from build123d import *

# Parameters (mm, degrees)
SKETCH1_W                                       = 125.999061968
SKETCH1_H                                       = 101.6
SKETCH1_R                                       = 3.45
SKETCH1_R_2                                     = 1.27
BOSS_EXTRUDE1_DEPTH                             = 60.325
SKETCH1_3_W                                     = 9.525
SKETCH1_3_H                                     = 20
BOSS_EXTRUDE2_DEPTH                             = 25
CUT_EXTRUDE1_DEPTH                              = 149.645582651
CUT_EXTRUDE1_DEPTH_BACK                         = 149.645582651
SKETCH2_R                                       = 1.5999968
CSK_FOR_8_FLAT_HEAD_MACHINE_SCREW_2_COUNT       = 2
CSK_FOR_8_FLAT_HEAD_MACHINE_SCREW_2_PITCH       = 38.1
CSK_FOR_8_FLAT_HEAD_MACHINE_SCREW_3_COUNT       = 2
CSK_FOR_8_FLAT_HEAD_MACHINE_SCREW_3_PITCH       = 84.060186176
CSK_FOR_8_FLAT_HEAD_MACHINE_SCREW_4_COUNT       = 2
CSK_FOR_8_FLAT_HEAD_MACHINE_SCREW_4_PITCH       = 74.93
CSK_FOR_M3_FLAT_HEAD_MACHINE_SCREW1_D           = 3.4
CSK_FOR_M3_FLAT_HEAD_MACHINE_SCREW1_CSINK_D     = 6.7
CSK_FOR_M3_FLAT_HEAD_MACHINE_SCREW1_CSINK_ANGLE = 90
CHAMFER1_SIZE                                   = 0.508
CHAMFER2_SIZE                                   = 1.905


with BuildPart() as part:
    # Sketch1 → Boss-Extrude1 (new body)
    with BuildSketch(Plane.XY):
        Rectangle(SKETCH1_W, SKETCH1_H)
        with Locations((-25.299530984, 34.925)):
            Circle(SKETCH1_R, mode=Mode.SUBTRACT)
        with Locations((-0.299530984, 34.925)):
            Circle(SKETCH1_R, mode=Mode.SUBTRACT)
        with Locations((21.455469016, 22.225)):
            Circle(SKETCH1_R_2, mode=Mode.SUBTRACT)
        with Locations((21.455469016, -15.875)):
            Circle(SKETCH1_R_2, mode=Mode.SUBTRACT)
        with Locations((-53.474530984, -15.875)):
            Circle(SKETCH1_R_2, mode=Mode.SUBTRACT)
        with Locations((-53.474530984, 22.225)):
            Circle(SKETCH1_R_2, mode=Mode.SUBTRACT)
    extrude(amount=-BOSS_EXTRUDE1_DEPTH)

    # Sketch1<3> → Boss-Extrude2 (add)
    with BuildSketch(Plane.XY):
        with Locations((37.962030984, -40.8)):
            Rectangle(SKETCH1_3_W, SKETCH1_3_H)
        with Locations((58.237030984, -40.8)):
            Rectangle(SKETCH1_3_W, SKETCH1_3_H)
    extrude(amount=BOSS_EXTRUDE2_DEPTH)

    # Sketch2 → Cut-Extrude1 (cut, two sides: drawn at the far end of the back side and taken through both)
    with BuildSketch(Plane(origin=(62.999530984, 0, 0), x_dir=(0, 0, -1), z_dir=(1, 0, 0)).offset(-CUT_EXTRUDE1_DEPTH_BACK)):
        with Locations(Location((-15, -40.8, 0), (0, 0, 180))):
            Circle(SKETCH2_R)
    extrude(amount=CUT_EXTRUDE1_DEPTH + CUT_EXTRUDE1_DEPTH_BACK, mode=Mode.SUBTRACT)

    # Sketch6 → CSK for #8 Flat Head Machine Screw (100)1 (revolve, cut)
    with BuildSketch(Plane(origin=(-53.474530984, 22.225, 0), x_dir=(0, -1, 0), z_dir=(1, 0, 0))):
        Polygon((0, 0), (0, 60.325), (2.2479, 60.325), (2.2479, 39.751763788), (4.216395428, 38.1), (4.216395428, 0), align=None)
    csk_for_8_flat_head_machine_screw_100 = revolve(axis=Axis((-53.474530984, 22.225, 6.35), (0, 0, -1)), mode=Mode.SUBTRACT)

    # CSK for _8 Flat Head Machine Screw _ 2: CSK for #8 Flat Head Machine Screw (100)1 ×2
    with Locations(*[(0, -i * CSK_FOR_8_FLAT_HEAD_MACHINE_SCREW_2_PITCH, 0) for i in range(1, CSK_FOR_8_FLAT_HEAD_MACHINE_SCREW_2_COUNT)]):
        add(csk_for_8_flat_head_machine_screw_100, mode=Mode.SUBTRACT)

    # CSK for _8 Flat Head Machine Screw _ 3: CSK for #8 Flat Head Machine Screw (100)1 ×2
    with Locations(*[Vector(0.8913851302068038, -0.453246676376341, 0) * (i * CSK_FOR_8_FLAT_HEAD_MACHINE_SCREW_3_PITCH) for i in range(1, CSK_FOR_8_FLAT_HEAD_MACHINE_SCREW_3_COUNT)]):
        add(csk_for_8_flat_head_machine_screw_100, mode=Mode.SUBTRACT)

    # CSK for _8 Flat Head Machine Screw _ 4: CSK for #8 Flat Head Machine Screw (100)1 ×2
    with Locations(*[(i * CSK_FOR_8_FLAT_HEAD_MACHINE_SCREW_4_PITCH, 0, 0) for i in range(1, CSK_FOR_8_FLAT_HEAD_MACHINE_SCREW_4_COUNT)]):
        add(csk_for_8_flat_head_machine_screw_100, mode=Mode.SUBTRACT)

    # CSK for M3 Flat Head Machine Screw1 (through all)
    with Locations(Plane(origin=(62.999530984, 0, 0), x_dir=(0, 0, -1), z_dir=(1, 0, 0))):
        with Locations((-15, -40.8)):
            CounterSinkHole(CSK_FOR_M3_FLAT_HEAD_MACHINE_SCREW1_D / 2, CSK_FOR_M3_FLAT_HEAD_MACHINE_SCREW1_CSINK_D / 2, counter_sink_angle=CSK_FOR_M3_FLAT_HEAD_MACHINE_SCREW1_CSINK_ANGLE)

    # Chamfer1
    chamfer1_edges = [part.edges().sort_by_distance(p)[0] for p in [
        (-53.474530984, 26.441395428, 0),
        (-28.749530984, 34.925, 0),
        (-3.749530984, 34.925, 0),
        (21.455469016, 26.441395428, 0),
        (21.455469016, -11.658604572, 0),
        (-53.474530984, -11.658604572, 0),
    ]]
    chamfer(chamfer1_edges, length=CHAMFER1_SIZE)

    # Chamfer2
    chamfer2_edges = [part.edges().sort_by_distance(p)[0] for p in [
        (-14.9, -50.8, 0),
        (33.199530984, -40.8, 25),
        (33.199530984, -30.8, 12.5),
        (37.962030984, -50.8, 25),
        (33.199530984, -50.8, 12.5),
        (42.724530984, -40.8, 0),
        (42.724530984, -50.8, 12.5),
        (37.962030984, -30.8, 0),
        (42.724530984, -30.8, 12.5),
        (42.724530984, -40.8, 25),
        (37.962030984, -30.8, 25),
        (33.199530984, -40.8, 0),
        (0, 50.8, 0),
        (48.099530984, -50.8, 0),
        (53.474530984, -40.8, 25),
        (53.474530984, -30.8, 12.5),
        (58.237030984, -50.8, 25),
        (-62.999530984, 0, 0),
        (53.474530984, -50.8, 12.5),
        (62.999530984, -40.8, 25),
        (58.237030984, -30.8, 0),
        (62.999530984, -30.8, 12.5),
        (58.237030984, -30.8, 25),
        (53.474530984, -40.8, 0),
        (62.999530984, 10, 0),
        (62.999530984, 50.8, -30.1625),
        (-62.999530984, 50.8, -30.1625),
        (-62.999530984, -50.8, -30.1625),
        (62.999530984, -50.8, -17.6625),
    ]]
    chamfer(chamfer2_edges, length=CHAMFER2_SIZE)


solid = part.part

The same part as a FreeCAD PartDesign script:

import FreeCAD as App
import Part
import Sketcher
from FreeCAD import Vector
Q = App.Units.Quantity


def edges_at(feature, points):
    """Names of the edges that pass closest to the given points."""
    edges = feature.Shape.Edges
    near = lambda p: min(range(len(edges)), key=lambda i: edges[i].distToShape(Part.Vertex(*p))[0])
    return sorted({f"Edge{near(p) + 1}" for p in points})

doc = App.newDocument("Part")
body = doc.addObject("PartDesign::Body", "Body")

sketch1 = body.newObject("Sketcher::SketchObject", "Sketch")
sketch1.AttachmentSupport = (doc.getObject("XY_Plane"), [""])
sketch1.MapMode = "FlatFace"
sketch1.addGeometry(Part.LineSegment(Vector(-63, 50.8, 0), Vector(-63, -50.8, 0)), False)
sketch1.addGeometry(Part.LineSegment(Vector(-63, -50.8, 0), Vector(63, -50.8, 0)), False)
sketch1.addGeometry(Part.LineSegment(Vector(63, -50.8, 0), Vector(63, 50.8, 0)), False)
sketch1.addGeometry(Part.LineSegment(Vector(63, 50.8, 0), Vector(-63, 50.8, 0)), False)
sketch1.addGeometry(Part.Circle(Vector(-53.5, -15.9, 0), Vector(0, 0, 1), 1.3), False)
sketch1.addGeometry(Part.Circle(Vector(21.5, -15.9, 0), Vector(0, 0, 1), 1.3), False)
sketch1.addGeometry(Part.Circle(Vector(-53.5, 22.2, 0), Vector(0, 0, 1), 1.3), False)
sketch1.addGeometry(Part.Circle(Vector(-25.3, 34.9, 0), Vector(0, 0, 1), 3.5), False)
sketch1.addGeometry(Part.Circle(Vector(21.5, 22.2, 0), Vector(0, 0, 1), 1.3), False)
sketch1.addGeometry(Part.Circle(Vector(-0.3, 34.9, 0), Vector(0, 0, 1), 3.5), False)
sketch1.addConstraint(Sketcher.Constraint("Coincident", 0, 2, 1, 1))
sketch1.addConstraint(Sketcher.Constraint("Coincident", 1, 2, 2, 1))
sketch1.addConstraint(Sketcher.Constraint("Coincident", 2, 2, 3, 1))
sketch1.addConstraint(Sketcher.Constraint("Coincident", 3, 2, 0, 1))
sketch1.addConstraint(Sketcher.Constraint("Vertical", 0))
sketch1.addConstraint(Sketcher.Constraint("Horizontal", 1))
sketch1.addConstraint(Sketcher.Constraint("Vertical", 2))
sketch1.addConstraint(Sketcher.Constraint("Horizontal", 3))
sketch1.addConstraint(Sketcher.Constraint("Equal", 4, 5))
sketch1.addConstraint(Sketcher.Constraint("Equal", 5, 6))
sketch1.addConstraint(Sketcher.Constraint("Equal", 6, 8))
sketch1.addConstraint(Sketcher.Constraint("Equal", 7, 9))
sketch1.addConstraint(Sketcher.Constraint("Symmetric", 0, 2, 2, 2, -1, 1))
sketch1.addConstraint(Sketcher.Constraint("Horizontal", 4, 3, 5, 3))
sketch1.addConstraint(Sketcher.Constraint("Horizontal", 6, 3, 8, 3))
sketch1.addConstraint(Sketcher.Constraint("Horizontal", 7, 3, 9, 3))
sketch1.addConstraint(Sketcher.Constraint("Vertical", 4, 3, 6, 3))
sketch1.addConstraint(Sketcher.Constraint("Vertical", 5, 3, 8, 3))
sketch1.addConstraint(Sketcher.Constraint("Diameter", 4, Q("0.1 in")))
sketch1.addConstraint(Sketcher.Constraint("DistanceY", 0, 2, 0, 1, Q("4 in")))
sketch1.addConstraint(Sketcher.Constraint("DistanceY", 4, 3, 7, 3, Q("2 in")))
sketch1.addConstraint(Sketcher.Constraint("DistanceY", 4, 3, 6, 3, Q("1.5 in")))
sketch1.addConstraint(Sketcher.Constraint("Diameter", 7, 6.9))
sketch1.addConstraint(Sketcher.Constraint("DistanceX", 4, 3, 5, 3, Q("2.95 in")))
sketch1.addConstraint(Sketcher.Constraint("DistanceY", 4, 3, -1, 1, Q("0.625 in")))
sketch1.addConstraint(Sketcher.Constraint("DistanceX", 0, 2, 4, 3, Q("0.375 in")))
sketch1.addConstraint(Sketcher.Constraint("DistanceX", 1, 1, 1, 2, 125.999062))
sketch1.addConstraint(Sketcher.Constraint("DistanceX", 6, 3, 7, 3, 28.175))
sketch1.addConstraint(Sketcher.Constraint("DistanceX", 7, 3, 9, 3, 25.0))
pad1 = body.newObject("PartDesign::Pad", "Pad")
pad1.Profile = sketch1
pad1.Length = Q("2.375 in")
pad1.Reversed = True

sketch2 = body.newObject("Sketcher::SketchObject", "Sketch001")
sketch2.AttachmentSupport = (doc.getObject("XY_Plane"), [""])
sketch2.MapMode = "FlatFace"
sketch2.addGeometry(Part.LineSegment(Vector(33, -31, 0), Vector(33, -51, 0)), False)
sketch2.addGeometry(Part.LineSegment(Vector(33, -51, 0), Vector(43, -51, 0)), False)
sketch2.addGeometry(Part.LineSegment(Vector(43, -51, 0), Vector(43, -31, 0)), False)
sketch2.addGeometry(Part.LineSegment(Vector(43, -31, 0), Vector(33, -31, 0)), False)
sketch2.addGeometry(Part.LineSegment(Vector(53, -31, 0), Vector(53, -51, 0)), False)
sketch2.addGeometry(Part.LineSegment(Vector(53, -51, 0), Vector(63, -51, 0)), False)
sketch2.addGeometry(Part.LineSegment(Vector(63, -51, 0), Vector(63, -31, 0)), False)
sketch2.addGeometry(Part.LineSegment(Vector(63, -31, 0), Vector(53, -31, 0)), False)
sketch2.addConstraint(Sketcher.Constraint("Coincident", 0, 2, 1, 1))
sketch2.addConstraint(Sketcher.Constraint("Coincident", 1, 2, 2, 1))
sketch2.addConstraint(Sketcher.Constraint("Coincident", 2, 2, 3, 1))
sketch2.addConstraint(Sketcher.Constraint("Coincident", 3, 2, 0, 1))
sketch2.addConstraint(Sketcher.Constraint("Coincident", 4, 2, 5, 1))
sketch2.addConstraint(Sketcher.Constraint("Coincident", 5, 2, 6, 1))
sketch2.addConstraint(Sketcher.Constraint("Coincident", 6, 2, 7, 1))
sketch2.addConstraint(Sketcher.Constraint("Coincident", 7, 2, 4, 1))
sketch2.addConstraint(Sketcher.Constraint("Vertical", 0))
sketch2.addConstraint(Sketcher.Constraint("Horizontal", 1))
sketch2.addConstraint(Sketcher.Constraint("Vertical", 2))
sketch2.addConstraint(Sketcher.Constraint("Horizontal", 3))
sketch2.addConstraint(Sketcher.Constraint("Vertical", 4))
sketch2.addConstraint(Sketcher.Constraint("Horizontal", 5))
sketch2.addConstraint(Sketcher.Constraint("Vertical", 6))
sketch2.addConstraint(Sketcher.Constraint("Horizontal", 7))
sketch2.addConstraint(Sketcher.Constraint("Horizontal", 1, 2, 4, 2))
sketch2.addConstraint(Sketcher.Constraint("Horizontal", 3, 2, 6, 2))
sketch2.addConstraint(Sketcher.Constraint("Equal", 3, 5))
sketch2.addConstraint(Sketcher.Constraint("DistanceY", 0, 2, -1, 1, Q("2 in")))
sketch2.addConstraint(Sketcher.Constraint("DistanceX", 1, 1, 1, 2, Q("0.375 in")))
sketch2.addConstraint(Sketcher.Constraint("DistanceY", 0, 2, 0, 1, 20.0))
sketch2.addConstraint(Sketcher.Constraint("DistanceX", 1, 2, 4, 2, 10.75))
sketch2.addConstraint(Sketcher.Constraint("DistanceX", -1, 1, 0, 2, 33.199531))
pad2 = body.newObject("PartDesign::Pad", "Pad001")
pad2.Profile = sketch2
pad2.Length = 25

sketch3 = body.newObject("Sketcher::SketchObject", "Sketch002")
sketch3.AttachmentSupport = (doc.getObject("YZ_Plane"), [""])
sketch3.MapMode = "FlatFace"
sketch3.AttachmentOffset = App.Placement(Vector(0, 0, 62.999531), App.Rotation())
sketch3.addGeometry(Part.Circle(Vector(-40.8, 15, 0), Vector(0, 0, 1), 1.6), False)
sketch3.addConstraint(Sketcher.Constraint("Diameter", 0, 3.199994))
sketch3.addConstraint(Sketcher.Constraint("DistanceX", 0, 3, -1, 1, 40.8))
sketch3.addConstraint(Sketcher.Constraint("DistanceY", -1, 1, 0, 3, 15.0))
pocket1 = body.newObject("PartDesign::Pocket", "Pocket")
pocket1.Profile = sketch3
pocket1.Type = "ThroughAll"
pocket1.Midplane = True

sketch4 = body.newObject("Sketcher::SketchObject", "Sketch003")
sketch4.AttachmentSupport = (doc.getObject("YZ_Plane"), [""])
sketch4.MapMode = "FlatFace"
sketch4.AttachmentOffset = App.Placement(Vector(0, 0, -53.474531), App.Rotation())
sketch4.addGeometry(Part.LineSegment(Vector(22.2, -60.3, 0), Vector(22.2, 0, 0)), False)
sketch4.addGeometry(Part.LineSegment(Vector(22.2, 0, 0), Vector(18, 0, 0)), False)
sketch4.addGeometry(Part.LineSegment(Vector(18, 0, 0), Vector(18, -38.1, 0)), False)
sketch4.addGeometry(Part.LineSegment(Vector(18, -38.1, 0), Vector(20, -39.8, 0)), False)
sketch4.addGeometry(Part.LineSegment(Vector(20, -39.8, 0), Vector(20, -60.3, 0)), False)
sketch4.addGeometry(Part.LineSegment(Vector(20, -60.3, 0), Vector(22.2, -60.3, 0)), False)
sketch4.addGeometry(Part.LineSegment(Vector(22.2, 0, 0), Vector(22.2, -60.3, 0)), True)
sketch4.addConstraint(Sketcher.Constraint("Coincident", 0, 2, 1, 1))
sketch4.addConstraint(Sketcher.Constraint("Coincident", 1, 2, 2, 1))
sketch4.addConstraint(Sketcher.Constraint("Coincident", 2, 2, 3, 1))
sketch4.addConstraint(Sketcher.Constraint("Coincident", 3, 2, 4, 1))
sketch4.addConstraint(Sketcher.Constraint("Coincident", 4, 2, 5, 1))
sketch4.addConstraint(Sketcher.Constraint("Coincident", 5, 2, 0, 1))
sketch4.addConstraint(Sketcher.Constraint("Vertical", 0))
sketch4.addConstraint(Sketcher.Constraint("Horizontal", 1))
sketch4.addConstraint(Sketcher.Constraint("Vertical", 2))
sketch4.addConstraint(Sketcher.Constraint("Vertical", 4))
sketch4.addConstraint(Sketcher.Constraint("Horizontal", 5))
sketch4.addConstraint(Sketcher.Constraint("Vertical", 6))
sketch4.addConstraint(Sketcher.Constraint("Coincident", 6, 1, 0, 2))
sketch4.addConstraint(Sketcher.Constraint("PointOnObject", 0, 2, -1))
sketch4.addConstraint(Sketcher.Constraint("Horizontal", 4, 2, 6, 2))
sketch4.addConstraint(Sketcher.Constraint("DistanceY", 2, 2, 2, 1, Q("1.5 in")))
sketch4.addConstraint(Sketcher.Constraint("Angle", 3, Q("-40 deg")))
sketch4.addConstraint(Sketcher.Constraint("DistanceX", 1, 2, 1, 1, Q("0.1659998 in")))
sketch4.addConstraint(Sketcher.Constraint("DistanceY", 0, 1, 0, 2, Q("2.375 in")))
sketch4.addConstraint(Sketcher.Constraint("DistanceX", 5, 1, 5, 2, Q("0.0885 in")))
sketch4.addConstraint(Sketcher.Constraint("DistanceX", -1, 1, 0, 2, Q("0.875 in")))
groove = body.newObject("PartDesign::Groove", "Groove")
groove.Profile = sketch4
groove.ReferenceAxis = (sketch4, ["Axis0"])
groove.Angle = 360
doc.recompute()

linearpattern = body.newObject("PartDesign::LinearPattern", "LinearPattern")
linearpattern.Originals = [groove]
linearpattern.Direction = (doc.getObject("Y_Axis"), [""])
linearpattern.Mode = "offset"
linearpattern.Offset = Q("1.5 in")
linearpattern.Occurrences = 2
linearpattern.Reversed = True
body.Tip = linearpattern
doc.recompute()

datumline = body.newObject("PartDesign::Line", "DatumLine")
datumline.Placement = App.Placement(Vector(0, 0, 0), App.Rotation(Vector(0, 0, 1), Vector(0.89138513, -0.453246676, 0)))
linearpattern2 = body.newObject("PartDesign::LinearPattern", "LinearPattern001")
linearpattern2.Originals = [groove]
linearpattern2.Direction = (datumline, [""])
linearpattern2.Mode = "offset"
linearpattern2.Offset = 84.060186
linearpattern2.Occurrences = 2
body.Tip = linearpattern2
doc.recompute()

linearpattern3 = body.newObject("PartDesign::LinearPattern", "LinearPattern002")
linearpattern3.Originals = [groove]
linearpattern3.Direction = (doc.getObject("X_Axis"), [""])
linearpattern3.Mode = "offset"
linearpattern3.Offset = Q("2.95 in")
linearpattern3.Occurrences = 2
body.Tip = linearpattern3

sketch5 = body.newObject("Sketcher::SketchObject", "Sketch004")
sketch5.AttachmentSupport = (doc.getObject("YZ_Plane"), [""])
sketch5.MapMode = "FlatFace"
sketch5.AttachmentOffset = App.Placement(Vector(0, 0, 62.999531), App.Rotation())
sketch5.addGeometry(Part.Circle(Vector(-40.8, 15, 0), Vector(0, 0, 1), 1.7), False)
sketch5.addConstraint(Sketcher.Constraint("Diameter", 0, 3.4))
sketch5.addConstraint(Sketcher.Constraint("DistanceX", 0, 3, -1, 1, 40.8))
sketch5.addConstraint(Sketcher.Constraint("DistanceY", -1, 1, 0, 3, 15.0))
doc.recompute()
hole = body.newObject("PartDesign::Hole", "Hole")
hole.Profile = sketch5
hole.ThreadType = "None"
hole.Diameter = 3.4
hole.DepthType = "ThroughAll"
hole.HoleCutType = "Countersink"
hole.HoleCutDiameter = 6.7
hole.HoleCutCountersinkAngle = 90
doc.recompute()

chamfer = body.newObject("PartDesign::Chamfer", "Chamfer")
chamfer.Base = (hole, edges_at(hole, [
    (-53.475, 26.441, 0),
    (-28.75, 34.925, 0),
    (-3.75, 34.925, 0),
    (21.455, 26.441, 0),
    (21.455, -11.659, 0),
    (-53.475, -11.659, 0),
]))
chamfer.Size = Q("0.02 in")
doc.recompute()

chamfer2 = body.newObject("PartDesign::Chamfer", "Chamfer001")
chamfer2.Base = (chamfer, edges_at(chamfer, [
    (-14.9, -50.8, 0),
    (33.2, -40.8, 25),
    (33.2, -30.8, 12.5),
    (37.962, -50.8, 25),
    (33.2, -50.8, 12.5),
    (42.725, -40.8, 0),
    (42.725, -50.8, 12.5),
    (37.962, -30.8, 0),
    (42.725, -30.8, 12.5),
    (42.725, -40.8, 25),
    (37.962, -30.8, 25),
    (33.2, -40.8, 0),
    (0, 50.8, 0),
    (48.1, -50.8, 0),
    (53.475, -40.8, 25),
    (53.475, -30.8, 12.5),
    (58.237, -50.8, 25),
    (-63, 0, 0),
    (53.475, -50.8, 12.5),
    (63, -40.8, 25),
    (58.237, -30.8, 0),
    (63, -30.8, 12.5),
    (58.237, -30.8, 25),
    (53.475, -40.8, 0),
    (63, 10, 0),
    (63, 50.8, -30.163),
    (-63, 50.8, -30.163),
    (-63, -50.8, -30.163),
    (63, -50.8, -17.663),
]))
chamfer2.Size = Q("0.075 in")

doc.recompute()
